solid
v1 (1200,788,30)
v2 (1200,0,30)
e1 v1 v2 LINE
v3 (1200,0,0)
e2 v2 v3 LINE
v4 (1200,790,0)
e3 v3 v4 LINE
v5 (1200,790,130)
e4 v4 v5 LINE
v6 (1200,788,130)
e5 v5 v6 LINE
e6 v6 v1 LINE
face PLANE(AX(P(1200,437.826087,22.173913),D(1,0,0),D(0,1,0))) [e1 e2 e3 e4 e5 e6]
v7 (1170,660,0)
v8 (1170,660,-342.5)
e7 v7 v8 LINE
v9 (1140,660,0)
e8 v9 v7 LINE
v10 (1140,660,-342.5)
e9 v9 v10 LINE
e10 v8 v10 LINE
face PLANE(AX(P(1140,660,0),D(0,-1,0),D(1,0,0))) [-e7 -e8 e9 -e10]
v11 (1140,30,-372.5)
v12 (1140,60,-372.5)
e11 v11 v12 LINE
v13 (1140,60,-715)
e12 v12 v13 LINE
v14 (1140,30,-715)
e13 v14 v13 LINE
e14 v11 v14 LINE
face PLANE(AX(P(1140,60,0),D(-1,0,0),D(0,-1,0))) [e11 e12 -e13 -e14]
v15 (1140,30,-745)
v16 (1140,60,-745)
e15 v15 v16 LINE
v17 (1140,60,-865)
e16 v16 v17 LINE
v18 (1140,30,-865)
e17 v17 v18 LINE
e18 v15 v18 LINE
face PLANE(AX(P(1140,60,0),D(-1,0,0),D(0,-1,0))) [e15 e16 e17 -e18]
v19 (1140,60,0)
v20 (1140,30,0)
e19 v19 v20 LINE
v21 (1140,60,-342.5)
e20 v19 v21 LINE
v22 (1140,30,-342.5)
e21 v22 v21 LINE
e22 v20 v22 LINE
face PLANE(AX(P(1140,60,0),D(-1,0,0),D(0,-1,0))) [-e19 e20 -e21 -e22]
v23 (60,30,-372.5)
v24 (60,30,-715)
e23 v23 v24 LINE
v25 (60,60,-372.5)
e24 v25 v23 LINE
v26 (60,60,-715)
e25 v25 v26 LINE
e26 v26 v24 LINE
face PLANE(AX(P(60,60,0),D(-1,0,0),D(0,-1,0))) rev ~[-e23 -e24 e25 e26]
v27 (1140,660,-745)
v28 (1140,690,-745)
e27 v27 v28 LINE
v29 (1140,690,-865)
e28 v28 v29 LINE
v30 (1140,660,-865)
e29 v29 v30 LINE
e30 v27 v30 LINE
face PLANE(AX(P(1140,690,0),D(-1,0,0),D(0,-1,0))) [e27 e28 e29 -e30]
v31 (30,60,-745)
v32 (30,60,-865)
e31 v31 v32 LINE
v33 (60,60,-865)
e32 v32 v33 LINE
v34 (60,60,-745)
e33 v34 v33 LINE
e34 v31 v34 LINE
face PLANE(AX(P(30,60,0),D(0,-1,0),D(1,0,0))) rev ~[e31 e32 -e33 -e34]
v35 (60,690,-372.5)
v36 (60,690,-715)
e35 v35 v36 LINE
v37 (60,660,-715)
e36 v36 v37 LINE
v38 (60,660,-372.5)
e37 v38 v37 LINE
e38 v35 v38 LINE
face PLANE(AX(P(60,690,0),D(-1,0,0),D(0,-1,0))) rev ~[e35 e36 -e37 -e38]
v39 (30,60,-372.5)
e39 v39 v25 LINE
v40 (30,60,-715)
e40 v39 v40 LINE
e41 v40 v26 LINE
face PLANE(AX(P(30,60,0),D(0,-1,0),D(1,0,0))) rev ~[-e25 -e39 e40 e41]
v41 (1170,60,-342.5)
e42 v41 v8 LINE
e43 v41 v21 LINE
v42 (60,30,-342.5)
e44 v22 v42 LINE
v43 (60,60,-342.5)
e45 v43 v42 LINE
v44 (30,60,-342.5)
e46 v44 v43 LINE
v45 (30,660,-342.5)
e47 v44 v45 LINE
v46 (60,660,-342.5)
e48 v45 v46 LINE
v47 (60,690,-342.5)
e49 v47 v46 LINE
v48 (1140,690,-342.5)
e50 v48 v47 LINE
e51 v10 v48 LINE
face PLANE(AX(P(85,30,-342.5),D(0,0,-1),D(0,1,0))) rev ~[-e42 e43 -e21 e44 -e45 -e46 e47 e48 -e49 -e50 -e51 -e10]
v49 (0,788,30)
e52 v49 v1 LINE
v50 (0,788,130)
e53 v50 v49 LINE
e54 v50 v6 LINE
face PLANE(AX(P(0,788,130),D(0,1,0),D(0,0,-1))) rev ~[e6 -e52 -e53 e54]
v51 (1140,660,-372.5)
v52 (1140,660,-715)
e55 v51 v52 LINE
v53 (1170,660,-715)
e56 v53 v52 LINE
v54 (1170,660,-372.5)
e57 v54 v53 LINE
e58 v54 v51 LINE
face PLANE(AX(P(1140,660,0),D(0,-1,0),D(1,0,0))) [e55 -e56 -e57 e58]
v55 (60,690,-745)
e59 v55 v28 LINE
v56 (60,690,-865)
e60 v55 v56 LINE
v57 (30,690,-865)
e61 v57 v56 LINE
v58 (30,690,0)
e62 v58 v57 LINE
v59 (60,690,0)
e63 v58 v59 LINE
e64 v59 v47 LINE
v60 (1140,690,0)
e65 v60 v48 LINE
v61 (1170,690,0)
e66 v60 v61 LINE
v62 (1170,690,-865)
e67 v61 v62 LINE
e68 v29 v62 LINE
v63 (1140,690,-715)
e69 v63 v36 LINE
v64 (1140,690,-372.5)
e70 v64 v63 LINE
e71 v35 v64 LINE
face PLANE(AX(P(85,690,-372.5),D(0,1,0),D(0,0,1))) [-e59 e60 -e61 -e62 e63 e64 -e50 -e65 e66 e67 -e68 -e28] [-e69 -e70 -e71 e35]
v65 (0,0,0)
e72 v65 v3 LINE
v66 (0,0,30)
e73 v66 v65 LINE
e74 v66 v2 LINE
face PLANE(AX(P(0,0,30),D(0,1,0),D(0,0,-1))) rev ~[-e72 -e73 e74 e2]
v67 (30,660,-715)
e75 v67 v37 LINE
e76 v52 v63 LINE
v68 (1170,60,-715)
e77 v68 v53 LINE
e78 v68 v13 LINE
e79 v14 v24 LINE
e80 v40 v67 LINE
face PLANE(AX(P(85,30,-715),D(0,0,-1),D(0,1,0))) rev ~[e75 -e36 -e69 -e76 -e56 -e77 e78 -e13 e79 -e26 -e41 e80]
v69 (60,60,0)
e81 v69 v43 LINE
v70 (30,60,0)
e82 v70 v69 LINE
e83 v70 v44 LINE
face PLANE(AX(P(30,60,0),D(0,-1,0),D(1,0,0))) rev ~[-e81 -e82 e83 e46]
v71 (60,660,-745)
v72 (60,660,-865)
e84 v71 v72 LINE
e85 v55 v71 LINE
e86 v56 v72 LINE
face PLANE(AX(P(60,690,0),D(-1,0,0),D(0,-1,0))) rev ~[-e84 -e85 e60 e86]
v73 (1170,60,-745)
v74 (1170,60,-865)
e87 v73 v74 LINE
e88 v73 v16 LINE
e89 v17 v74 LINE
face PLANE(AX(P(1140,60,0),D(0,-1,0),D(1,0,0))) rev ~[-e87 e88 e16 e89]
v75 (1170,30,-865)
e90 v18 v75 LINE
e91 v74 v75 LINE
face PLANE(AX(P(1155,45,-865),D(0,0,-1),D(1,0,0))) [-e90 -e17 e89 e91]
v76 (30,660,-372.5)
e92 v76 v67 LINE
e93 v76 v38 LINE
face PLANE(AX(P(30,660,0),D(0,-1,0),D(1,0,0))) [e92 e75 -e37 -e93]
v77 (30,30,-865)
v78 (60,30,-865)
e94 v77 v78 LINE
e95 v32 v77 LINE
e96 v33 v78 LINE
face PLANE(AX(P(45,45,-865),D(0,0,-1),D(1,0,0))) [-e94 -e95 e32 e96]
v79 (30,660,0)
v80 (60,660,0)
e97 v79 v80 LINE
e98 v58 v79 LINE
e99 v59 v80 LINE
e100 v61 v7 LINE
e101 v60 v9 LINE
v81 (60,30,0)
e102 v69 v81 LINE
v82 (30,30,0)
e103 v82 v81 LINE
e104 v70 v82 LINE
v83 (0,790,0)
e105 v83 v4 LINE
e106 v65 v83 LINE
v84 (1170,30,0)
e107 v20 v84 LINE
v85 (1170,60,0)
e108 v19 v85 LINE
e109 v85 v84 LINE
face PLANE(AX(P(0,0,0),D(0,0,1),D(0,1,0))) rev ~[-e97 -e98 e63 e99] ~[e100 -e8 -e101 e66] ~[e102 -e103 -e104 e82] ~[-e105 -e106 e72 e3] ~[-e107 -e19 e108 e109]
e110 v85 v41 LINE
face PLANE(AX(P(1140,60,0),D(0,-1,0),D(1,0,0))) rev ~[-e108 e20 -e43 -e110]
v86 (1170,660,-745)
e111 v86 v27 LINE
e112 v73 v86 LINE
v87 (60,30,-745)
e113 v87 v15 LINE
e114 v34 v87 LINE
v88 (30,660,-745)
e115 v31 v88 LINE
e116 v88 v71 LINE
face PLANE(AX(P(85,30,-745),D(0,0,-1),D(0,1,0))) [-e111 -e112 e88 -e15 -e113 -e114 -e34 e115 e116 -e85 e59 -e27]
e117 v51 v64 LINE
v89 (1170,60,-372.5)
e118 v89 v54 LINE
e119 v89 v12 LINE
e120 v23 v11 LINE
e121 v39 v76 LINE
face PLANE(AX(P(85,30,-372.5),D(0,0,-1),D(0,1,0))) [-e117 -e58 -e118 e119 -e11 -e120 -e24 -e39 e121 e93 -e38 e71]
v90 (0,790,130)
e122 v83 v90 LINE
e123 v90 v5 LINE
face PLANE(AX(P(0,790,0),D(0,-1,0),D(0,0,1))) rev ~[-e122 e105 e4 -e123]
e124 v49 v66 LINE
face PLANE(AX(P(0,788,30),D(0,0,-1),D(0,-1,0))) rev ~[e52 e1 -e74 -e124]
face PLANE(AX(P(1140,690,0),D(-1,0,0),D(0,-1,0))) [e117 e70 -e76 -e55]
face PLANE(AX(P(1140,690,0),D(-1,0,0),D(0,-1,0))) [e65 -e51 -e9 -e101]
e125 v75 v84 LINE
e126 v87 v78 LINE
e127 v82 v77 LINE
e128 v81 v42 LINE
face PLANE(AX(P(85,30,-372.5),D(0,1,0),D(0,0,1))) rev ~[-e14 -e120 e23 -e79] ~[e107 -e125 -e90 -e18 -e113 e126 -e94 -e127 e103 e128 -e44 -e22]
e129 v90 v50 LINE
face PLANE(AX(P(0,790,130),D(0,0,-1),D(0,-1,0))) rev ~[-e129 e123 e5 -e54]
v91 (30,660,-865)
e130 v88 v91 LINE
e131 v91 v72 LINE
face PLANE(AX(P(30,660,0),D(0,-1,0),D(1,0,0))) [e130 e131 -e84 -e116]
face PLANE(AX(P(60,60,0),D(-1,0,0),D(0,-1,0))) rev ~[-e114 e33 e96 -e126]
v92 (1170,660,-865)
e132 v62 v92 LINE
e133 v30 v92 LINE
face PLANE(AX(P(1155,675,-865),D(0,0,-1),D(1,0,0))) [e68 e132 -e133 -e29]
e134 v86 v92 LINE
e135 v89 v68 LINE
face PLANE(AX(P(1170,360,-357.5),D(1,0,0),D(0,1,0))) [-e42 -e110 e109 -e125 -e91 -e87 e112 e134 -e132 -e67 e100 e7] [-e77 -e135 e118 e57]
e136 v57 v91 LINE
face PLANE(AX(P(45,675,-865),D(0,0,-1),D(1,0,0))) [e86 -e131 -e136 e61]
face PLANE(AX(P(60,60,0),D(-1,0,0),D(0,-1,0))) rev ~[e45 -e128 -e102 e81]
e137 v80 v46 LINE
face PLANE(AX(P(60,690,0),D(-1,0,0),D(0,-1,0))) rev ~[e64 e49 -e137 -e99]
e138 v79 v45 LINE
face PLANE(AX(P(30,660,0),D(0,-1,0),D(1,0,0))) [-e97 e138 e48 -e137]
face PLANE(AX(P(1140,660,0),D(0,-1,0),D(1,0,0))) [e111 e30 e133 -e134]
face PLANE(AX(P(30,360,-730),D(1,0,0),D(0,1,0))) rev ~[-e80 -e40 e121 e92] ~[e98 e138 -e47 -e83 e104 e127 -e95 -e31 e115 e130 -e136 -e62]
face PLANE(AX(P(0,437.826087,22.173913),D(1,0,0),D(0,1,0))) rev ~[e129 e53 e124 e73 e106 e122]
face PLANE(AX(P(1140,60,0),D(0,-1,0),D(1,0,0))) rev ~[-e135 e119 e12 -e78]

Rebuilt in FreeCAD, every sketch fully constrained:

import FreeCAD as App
import Part
import Sketcher

V = App.Vector
Q = App.Units.Quantity


def add_polygon(sketch, points):
    """Adds a closed chain of lines whose ends are joined by coincident constraints."""
    first, n = sketch.GeometryCount, len(points)
    for a, b in zip(points, points[1:] + points[:1]):
        sketch.addGeometry(Part.LineSegment(App.Vector(*a, 0), App.Vector(*b, 0)), False)
    for i in range(n):
        sketch.addConstraint(Sketcher.Constraint("Coincident", first + i, 2, first + (i + 1) % n, 1))

doc = App.newDocument("Part")
body = doc.addObject("PartDesign::Body", "Body")

sketch1 = body.newObject("Sketcher::SketchObject", "Sketch")
sketch1.AttachmentSupport = (doc.getObject("YZ_Plane"), [""])
sketch1.MapMode = "FlatFace"
add_polygon(sketch1, [(0, 30), (0, 0), (790, 0), (790, 130), (788, 130), (788, 30)])
sketch1.addConstraint([
    Sketcher.Constraint("Vertical", 0),
    Sketcher.Constraint("Horizontal", 1),
    Sketcher.Constraint("Vertical", 2),
    Sketcher.Constraint("Horizontal", 3),
    Sketcher.Constraint("Vertical", 4),
    Sketcher.Constraint("Horizontal", 5),
    Sketcher.Constraint("Coincident", 0, 2, -1, 1),
    Sketcher.Constraint("DistanceX", 1, 1, 1, 2, Q("790 mm")),
    Sketcher.Constraint("DistanceX", 3, 2, 3, 1, Q("2 mm")),
    Sketcher.Constraint("DistanceY", 0, 2, 0, 1, Q("30 mm")),
    Sketcher.Constraint("DistanceY", 2, 1, 2, 2, Q("130 mm")),
])
pad1 = body.newObject("PartDesign::Pad", "Pad")
pad1.Profile = sketch1
pad1.Length = 1200

sketch2 = body.newObject("Sketcher::SketchObject", "Sketch001")
sketch2.AttachmentSupport = (doc.getObject("XY_Plane"), [""])
sketch2.MapMode = "FlatFace"
add_polygon(sketch2, [(30, 30), (30, 60), (60, 60), (60, 30)])
add_polygon(sketch2, [(1140, 30), (1140, 60), (1170, 60), (1170, 30)])
add_polygon(sketch2, [(1140, 660), (1140, 690), (1170, 690), (1170, 660)])
add_polygon(sketch2, [(30, 660), (30, 690), (60, 690), (60, 660)])
sketch2.addConstraint([
    Sketcher.Constraint("Vertical", 0),
    Sketcher.Constraint("Horizontal", 1),
    Sketcher.Constraint("Vertical", 2),
    Sketcher.Constraint("Horizontal", 3),
    Sketcher.Constraint("Vertical", 4),
    Sketcher.Constraint("Horizontal", 5),
    Sketcher.Constraint("Vertical", 6),
    Sketcher.Constraint("Horizontal", 7),
    Sketcher.Constraint("Vertical", 8),
    Sketcher.Constraint("Horizontal", 9),
    Sketcher.Constraint("Vertical", 10),
    Sketcher.Constraint("Horizontal", 11),
    Sketcher.Constraint("Vertical", 12),
    Sketcher.Constraint("Horizontal", 13),
    Sketcher.Constraint("Vertical", 14),
    Sketcher.Constraint("Horizontal", 15),
    Sketcher.Constraint("Horizontal", 1, 2, 4, 2),
    Sketcher.Constraint("Horizontal", 3, 2, 6, 2),
    Sketcher.Constraint("Horizontal", 9, 2, 12, 2),
    Sketcher.Constraint("Horizontal", 11, 2, 14, 2),
    Sketcher.Constraint("Vertical", 7, 2, 8, 2),
    Sketcher.Constraint("Vertical", 6, 2, 9, 2),
    Sketcher.Constraint("Vertical", 3, 2, 12, 2),
    Sketcher.Constraint("Vertical", 2, 2, 13, 2),
    Sketcher.Constraint("Equal", 3, 5),
    Sketcher.Constraint("Equal", 15, 0),
    Sketcher.Constraint("Equal", 6, 8),
    Sketcher.Constraint("DistanceX", 1, 1, 1, 2, Q("30 mm")),
    Sketcher.Constraint("DistanceX", -1, 1, 0, 2, Q("30 mm")),
    Sketcher.Constraint("DistanceY", -1, 1, 0, 2, Q("60 mm")),
    Sketcher.Constraint("DistanceX", -1, 1, 4, 2, Q("1140 mm")),
    Sketcher.Constraint("DistanceY", -1, 1, 8, 2, Q("690 mm")),
])
pad2 = body.newObject("PartDesign::Pad", "Pad001")
pad2.Profile = sketch2
pad2.Length = 865
pad2.Reversed = True

sketch3 = body.newObject("Sketcher::SketchObject", "Sketch002")
sketch3.AttachmentSupport = (doc.getObject("YZ_Plane"), [""])
sketch3.MapMode = "FlatFace"
sketch3.AttachmentOffset = App.Placement(V(0, 0, 85), App.Rotation())
add_polygon(sketch3, [(30, -715), (30, -745), (690, -745), (690, -715)])
sketch3.addConstraint([
    Sketcher.Constraint("Vertical", 0),
    Sketcher.Constraint("Horizontal", 1),
    Sketcher.Constraint("Vertical", 2),
    Sketcher.Constraint("Horizontal", 3),
    Sketcher.Constraint("DistanceX", 1, 1, 1, 2, Q("660 mm")),
    Sketcher.Constraint("DistanceY", 0, 2, 0, 1, Q("30 mm")),
    Sketcher.Constraint("DistanceX", -1, 1, 0, 2, Q("30 mm")),
    Sketcher.Constraint("DistanceY", 0, 2, -1, 1, Q("745 mm")),
])
pad3 = body.newObject("PartDesign::Pad", "Pad002")
pad3.Profile = sketch3
pad3.Type = "TwoLengths"
pad3.Length = 1085
pad3.Length2 = 55

sketch4 = body.newObject("Sketcher::SketchObject", "Sketch003")
sketch4.AttachmentSupport = (doc.getObject("YZ_Plane"), [""])
sketch4.MapMode = "FlatFace"
sketch4.AttachmentOffset = App.Placement(V(0, 0, 85), App.Rotation())
add_polygon(sketch4, [(30, -342), (30, -372), (690, -372), (690, -342)])
sketch4.addConstraint([
    Sketcher.Constraint("Vertical", 0),
    Sketcher.Constraint("Horizontal", 1),
    Sketcher.Constraint("Vertical", 2),
    Sketcher.Constraint("Horizontal", 3),
    Sketcher.Constraint("DistanceX", 1, 1, 1, 2, Q("660 mm")),
    Sketcher.Constraint("DistanceY", 0, 2, 0, 1, Q("30 mm")),
    Sketcher.Constraint("DistanceX", -1, 1, 0, 2, Q("30 mm")),
    Sketcher.Constraint("DistanceY", 0, 2, -1, 1, Q("372.5 mm")),
])
pad4 = body.newObject("PartDesign::Pad", "Pad003")
pad4.Profile = sketch4
pad4.Type = "TwoLengths"
pad4.Length = 1085
pad4.Length2 = 55

doc.recompute()
